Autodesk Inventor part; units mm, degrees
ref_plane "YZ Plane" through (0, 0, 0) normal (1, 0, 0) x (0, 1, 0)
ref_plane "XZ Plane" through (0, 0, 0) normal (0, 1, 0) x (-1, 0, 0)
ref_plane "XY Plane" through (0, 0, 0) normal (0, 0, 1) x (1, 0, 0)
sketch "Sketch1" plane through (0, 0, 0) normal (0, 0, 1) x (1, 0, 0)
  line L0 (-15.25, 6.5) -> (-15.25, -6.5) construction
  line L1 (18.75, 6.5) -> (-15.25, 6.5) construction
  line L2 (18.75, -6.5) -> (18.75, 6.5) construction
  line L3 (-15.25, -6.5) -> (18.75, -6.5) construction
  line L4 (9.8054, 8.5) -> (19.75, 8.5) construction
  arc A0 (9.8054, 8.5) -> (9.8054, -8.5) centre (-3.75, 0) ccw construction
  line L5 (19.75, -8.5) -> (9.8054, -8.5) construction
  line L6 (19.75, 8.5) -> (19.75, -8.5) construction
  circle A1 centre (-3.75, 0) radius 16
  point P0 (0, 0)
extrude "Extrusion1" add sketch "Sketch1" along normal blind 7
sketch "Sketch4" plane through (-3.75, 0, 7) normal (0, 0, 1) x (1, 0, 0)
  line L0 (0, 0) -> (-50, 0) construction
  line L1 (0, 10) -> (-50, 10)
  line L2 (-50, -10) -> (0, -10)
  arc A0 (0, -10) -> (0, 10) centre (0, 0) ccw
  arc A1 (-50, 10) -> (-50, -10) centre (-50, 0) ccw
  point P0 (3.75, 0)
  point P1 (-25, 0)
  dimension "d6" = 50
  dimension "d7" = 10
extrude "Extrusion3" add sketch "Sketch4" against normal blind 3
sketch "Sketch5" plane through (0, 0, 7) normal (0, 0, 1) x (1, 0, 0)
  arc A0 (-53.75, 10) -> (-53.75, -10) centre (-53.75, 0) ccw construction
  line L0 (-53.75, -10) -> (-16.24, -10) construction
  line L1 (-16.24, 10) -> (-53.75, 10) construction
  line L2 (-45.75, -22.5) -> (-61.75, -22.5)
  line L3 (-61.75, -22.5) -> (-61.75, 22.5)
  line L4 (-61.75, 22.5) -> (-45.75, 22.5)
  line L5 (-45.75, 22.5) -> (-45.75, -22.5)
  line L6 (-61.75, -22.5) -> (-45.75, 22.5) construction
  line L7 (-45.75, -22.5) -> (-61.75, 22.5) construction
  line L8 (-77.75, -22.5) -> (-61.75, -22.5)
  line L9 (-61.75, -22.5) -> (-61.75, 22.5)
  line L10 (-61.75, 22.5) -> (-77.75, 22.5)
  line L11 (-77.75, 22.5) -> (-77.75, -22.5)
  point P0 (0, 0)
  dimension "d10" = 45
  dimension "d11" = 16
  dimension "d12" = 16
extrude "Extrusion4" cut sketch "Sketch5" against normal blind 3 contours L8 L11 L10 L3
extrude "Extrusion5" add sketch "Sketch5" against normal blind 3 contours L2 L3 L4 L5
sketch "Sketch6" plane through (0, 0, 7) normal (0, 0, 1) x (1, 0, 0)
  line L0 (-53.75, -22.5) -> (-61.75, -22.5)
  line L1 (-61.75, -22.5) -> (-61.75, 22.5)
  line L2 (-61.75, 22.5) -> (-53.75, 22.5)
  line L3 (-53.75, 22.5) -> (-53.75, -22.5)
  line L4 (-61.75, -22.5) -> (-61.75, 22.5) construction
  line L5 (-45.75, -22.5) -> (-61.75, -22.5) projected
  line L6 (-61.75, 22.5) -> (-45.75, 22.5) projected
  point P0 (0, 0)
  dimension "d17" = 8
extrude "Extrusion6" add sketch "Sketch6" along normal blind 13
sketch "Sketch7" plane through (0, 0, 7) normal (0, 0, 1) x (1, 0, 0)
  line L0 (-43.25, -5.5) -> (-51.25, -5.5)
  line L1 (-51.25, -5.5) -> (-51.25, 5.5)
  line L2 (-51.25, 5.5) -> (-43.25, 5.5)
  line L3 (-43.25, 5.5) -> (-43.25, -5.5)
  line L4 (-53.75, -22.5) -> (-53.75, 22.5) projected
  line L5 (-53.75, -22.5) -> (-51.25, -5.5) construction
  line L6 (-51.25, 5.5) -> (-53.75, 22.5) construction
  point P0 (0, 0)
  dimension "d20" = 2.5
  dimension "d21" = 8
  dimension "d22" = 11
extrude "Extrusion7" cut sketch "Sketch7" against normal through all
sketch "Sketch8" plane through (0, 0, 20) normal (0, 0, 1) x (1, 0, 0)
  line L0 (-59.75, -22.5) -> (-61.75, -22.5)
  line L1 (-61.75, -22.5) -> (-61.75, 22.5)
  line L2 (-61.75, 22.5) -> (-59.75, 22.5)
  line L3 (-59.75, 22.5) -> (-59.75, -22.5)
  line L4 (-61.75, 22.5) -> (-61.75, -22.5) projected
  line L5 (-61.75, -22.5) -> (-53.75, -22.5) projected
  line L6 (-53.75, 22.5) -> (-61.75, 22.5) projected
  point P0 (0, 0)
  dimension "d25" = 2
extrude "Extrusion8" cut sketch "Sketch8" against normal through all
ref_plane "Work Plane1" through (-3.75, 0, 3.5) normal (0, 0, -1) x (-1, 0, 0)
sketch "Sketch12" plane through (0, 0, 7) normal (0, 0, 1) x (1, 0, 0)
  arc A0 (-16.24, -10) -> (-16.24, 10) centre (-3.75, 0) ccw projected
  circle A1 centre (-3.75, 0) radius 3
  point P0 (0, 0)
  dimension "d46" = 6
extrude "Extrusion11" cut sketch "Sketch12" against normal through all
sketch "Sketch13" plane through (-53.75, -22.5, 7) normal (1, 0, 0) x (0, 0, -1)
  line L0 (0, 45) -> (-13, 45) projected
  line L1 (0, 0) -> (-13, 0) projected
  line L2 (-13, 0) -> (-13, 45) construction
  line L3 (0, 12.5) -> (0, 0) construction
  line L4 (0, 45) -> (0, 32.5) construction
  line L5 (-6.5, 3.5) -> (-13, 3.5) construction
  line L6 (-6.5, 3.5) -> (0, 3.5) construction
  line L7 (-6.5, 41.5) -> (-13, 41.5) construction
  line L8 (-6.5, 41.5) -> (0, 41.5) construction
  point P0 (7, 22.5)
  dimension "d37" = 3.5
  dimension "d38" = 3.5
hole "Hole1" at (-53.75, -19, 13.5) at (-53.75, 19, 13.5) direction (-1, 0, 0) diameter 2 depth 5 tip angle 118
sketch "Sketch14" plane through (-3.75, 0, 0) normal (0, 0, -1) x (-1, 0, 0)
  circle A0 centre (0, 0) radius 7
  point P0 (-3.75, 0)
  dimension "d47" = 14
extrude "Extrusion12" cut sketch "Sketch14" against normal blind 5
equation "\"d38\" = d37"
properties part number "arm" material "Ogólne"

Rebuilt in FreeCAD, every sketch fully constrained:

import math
import FreeCAD as App
import Part
import Sketcher

doc = App.newDocument("Part")
body = doc.addObject("PartDesign::Body", "Body")

sketch1 = body.newObject("Sketcher::SketchObject", "Sketch")
sketch1.AttachmentSupport = (doc.getObject("XY_Plane"), [""])
sketch1.MapMode = "FlatFace"
sketch1.addGeometry(Part.Circle(App.Vector(-4, 0, 0), App.Vector(0, 0, 1), 16), False)
sketch1.addConstraint(Sketcher.Constraint("PointOnObject", 0, 3, -1))
sketch1.addConstraint(Sketcher.Constraint("Diameter", 0, 32.0))
sketch1.addConstraint(Sketcher.Constraint("DistanceX", 0, 3, -1, 1, 3.75))
pad1 = body.newObject("PartDesign::Pad", "Pad")
pad1.Profile = sketch1
pad1.Length = 7

sketch2 = body.newObject("Sketcher::SketchObject", "Sketch001")
sketch2.AttachmentSupport = (doc.getObject("XY_Plane"), [""])
sketch2.MapMode = "FlatFace"
sketch2.AttachmentOffset = App.Placement(App.Vector(0, 0, 7), App.Rotation())
sketch2.addGeometry(Part.ArcOfCircle(Part.Circle(App.Vector(-4, 0, 0), App.Vector(0, 0, 1), 10), math.radians(-90), math.radians(90)), False)
sketch2.addGeometry(Part.LineSegment(App.Vector(-4, 10, 0), App.Vector(-54, 10, 0)), False)
sketch2.addGeometry(Part.ArcOfCircle(Part.Circle(App.Vector(-54, 0, 0), App.Vector(0, 0, 1), 10), math.radians(90), math.radians(270)), False)
sketch2.addGeometry(Part.LineSegment(App.Vector(-54, -10, 0), App.Vector(-4, -10, 0)), False)
sketch2.addConstraint(Sketcher.Constraint("Tangent", 0, 2, 1, 1))
sketch2.addConstraint(Sketcher.Constraint("Tangent", 1, 2, 2, 1))
sketch2.addConstraint(Sketcher.Constraint("Tangent", 2, 2, 3, 1))
sketch2.addConstraint(Sketcher.Constraint("Tangent", 3, 2, 0, 1))
sketch2.addConstraint(Sketcher.Constraint("Horizontal", 1))
sketch2.addConstraint(Sketcher.Constraint("Horizontal", 3))
sketch2.addConstraint(Sketcher.Constraint("PointOnObject", 0, 3, -1))
sketch2.addConstraint(Sketcher.Constraint("Radius", 0, 10.0))
sketch2.addConstraint(Sketcher.Constraint("DistanceX", 1, 2, 1, 1, 50.0))
sketch2.addConstraint(Sketcher.Constraint("DistanceX", 0, 3, -1, 1, 3.75))
pad2 = body.newObject("PartDesign::Pad", "Pad001")
pad2.Profile = sketch2
pad2.Length = 3
pad2.Reversed = True

sketch3 = body.newObject("Sketcher::SketchObject", "Sketch002")
sketch3.AttachmentSupport = (doc.getObject("XY_Plane"), [""])
sketch3.MapMode = "FlatFace"
sketch3.AttachmentOffset = App.Placement(App.Vector(0, 0, 7), App.Rotation())
sketch3.addGeometry(Part.LineSegment(App.Vector(-78, -22, 0), App.Vector(-62, -22, 0)), False)
sketch3.addGeometry(Part.LineSegment(App.Vector(-62, -22, 0), App.Vector(-62, 22, 0)), False)
sketch3.addGeometry(Part.LineSegment(App.Vector(-62, 22, 0), App.Vector(-78, 22, 0)), False)
sketch3.addGeometry(Part.LineSegment(App.Vector(-78, 22, 0), App.Vector(-78, -22, 0)), False)
sketch3.addConstraint(Sketcher.Constraint("Coincident", 0, 2, 1, 1))
sketch3.addConstraint(Sketcher.Constraint("Coincident", 1, 2, 2, 1))
sketch3.addConstraint(Sketcher.Constraint("Coincident", 2, 2, 3, 1))
sketch3.addConstraint(Sketcher.Constraint("Coincident", 3, 2, 0, 1))
sketch3.addConstraint(Sketcher.Constraint("Horizontal", 0))
sketch3.addConstraint(Sketcher.Constraint("Vertical", 1))
sketch3.addConstraint(Sketcher.Constraint("Horizontal", 2))
sketch3.addConstraint(Sketcher.Constraint("Vertical", 3))
sketch3.addConstraint(Sketcher.Constraint("DistanceX", 0, 1, 0, 2, 16.0))
sketch3.addConstraint(Sketcher.Constraint("DistanceY", 1, 1, 1, 2, 45.0))
sketch3.addConstraint(Sketcher.Constraint("DistanceY", 0, 2, -1, 1, 22.5))
sketch3.addConstraint(Sketcher.Constraint("DistanceX", 0, 2, -1, 1, 61.75))
pocket1 = body.newObject("PartDesign::Pocket", "Pocket")
pocket1.Profile = sketch3
pocket1.Length = 3

sketch4 = body.newObject("Sketcher::SketchObject", "Sketch003")
sketch4.AttachmentSupport = (doc.getObject("XY_Plane"), [""])
sketch4.MapMode = "FlatFace"
sketch4.AttachmentOffset = App.Placement(App.Vector(0, 0, 7), App.Rotation())
sketch4.addGeometry(Part.LineSegment(App.Vector(-62, -22, 0), App.Vector(-46, -22, 0)), False)
sketch4.addGeometry(Part.LineSegment(App.Vector(-46, -22, 0), App.Vector(-46, 22, 0)), False)
sketch4.addGeometry(Part.LineSegment(App.Vector(-46, 22, 0), App.Vector(-62, 22, 0)), False)
sketch4.addGeometry(Part.LineSegment(App.Vector(-62, 22, 0), App.Vector(-62, -22, 0)), False)
sketch4.addConstraint(Sketcher.Constraint("Coincident", 0, 2, 1, 1))
sketch4.addConstraint(Sketcher.Constraint("Coincident", 1, 2, 2, 1))
sketch4.addConstraint(Sketcher.Constraint("Coincident", 2, 2, 3, 1))
sketch4.addConstraint(Sketcher.Constraint("Coincident", 3, 2, 0, 1))
sketch4.addConstraint(Sketcher.Constraint("Horizontal", 0))
sketch4.addConstraint(Sketcher.Constraint("Vertical", 1))
sketch4.addConstraint(Sketcher.Constraint("Horizontal", 2))
sketch4.addConstraint(Sketcher.Constraint("Vertical", 3))
sketch4.addConstraint(Sketcher.Constraint("DistanceX", 0, 1, 0, 2, 16.0))
sketch4.addConstraint(Sketcher.Constraint("DistanceY", 1, 1, 1, 2, 45.0))
sketch4.addConstraint(Sketcher.Constraint("DistanceY", 0, 2, -1, 1, 22.5))
sketch4.addConstraint(Sketcher.Constraint("DistanceX", 0, 2, -1, 1, 45.75))
pad3 = body.newObject("PartDesign::Pad", "Pad002")
pad3.Profile = sketch4
pad3.Length = 3
pad3.Reversed = True

sketch5 = body.newObject("Sketcher::SketchObject", "Sketch004")
sketch5.AttachmentSupport = (doc.getObject("XY_Plane"), [""])
sketch5.MapMode = "FlatFace"
sketch5.AttachmentOffset = App.Placement(App.Vector(0, 0, 7), App.Rotation())
sketch5.addGeometry(Part.LineSegment(App.Vector(-62, -22, 0), App.Vector(-54, -22, 0)), False)
sketch5.addGeometry(Part.LineSegment(App.Vector(-54, -22, 0), App.Vector(-54, 22, 0)), False)
sketch5.addGeometry(Part.LineSegment(App.Vector(-54, 22, 0), App.Vector(-62, 22, 0)), False)
sketch5.addGeometry(Part.LineSegment(App.Vector(-62, 22, 0), App.Vector(-62, -22, 0)), False)
sketch5.addConstraint(Sketcher.Constraint("Coincident", 0, 2, 1, 1))
sketch5.addConstraint(Sketcher.Constraint("Coincident", 1, 2, 2, 1))
sketch5.addConstraint(Sketcher.Constraint("Coincident", 2, 2, 3, 1))
sketch5.addConstraint(Sketcher.Constraint("Coincident", 3, 2, 0, 1))
sketch5.addConstraint(Sketcher.Constraint("Horizontal", 0))
sketch5.addConstraint(Sketcher.Constraint("Vertical", 1))
sketch5.addConstraint(Sketcher.Constraint("Horizontal", 2))
sketch5.addConstraint(Sketcher.Constraint("Vertical", 3))
sketch5.addConstraint(Sketcher.Constraint("DistanceX", 0, 1, 0, 2, 8.0))
sketch5.addConstraint(Sketcher.Constraint("DistanceY", 1, 1, 1, 2, 45.0))
sketch5.addConstraint(Sketcher.Constraint("DistanceY", 0, 2, -1, 1, 22.5))
sketch5.addConstraint(Sketcher.Constraint("DistanceX", 0, 2, -1, 1, 53.75))
pad4 = body.newObject("PartDesign::Pad", "Pad003")
pad4.Profile = sketch5
pad4.Length = 13

sketch6 = body.newObject("Sketcher::SketchObject", "Sketch005")
sketch6.AttachmentSupport = (doc.getObject("XY_Plane"), [""])
sketch6.MapMode = "FlatFace"
sketch6.AttachmentOffset = App.Placement(App.Vector(0, 0, 7), App.Rotation())
sketch6.addGeometry(Part.LineSegment(App.Vector(-51, -6, 0), App.Vector(-43, -6, 0)), False)
sketch6.addGeometry(Part.LineSegment(App.Vector(-43, -6, 0), App.Vector(-43, 6, 0)), False)
sketch6.addGeometry(Part.LineSegment(App.Vector(-43, 6, 0), App.Vector(-51, 6, 0)), False)
sketch6.addGeometry(Part.LineSegment(App.Vector(-51, 6, 0), App.Vector(-51, -6, 0)), False)
sketch6.addConstraint(Sketcher.Constraint("Coincident", 0, 2, 1, 1))
sketch6.addConstraint(Sketcher.Constraint("Coincident", 1, 2, 2, 1))
sketch6.addConstraint(Sketcher.Constraint("Coincident", 2, 2, 3, 1))
sketch6.addConstraint(Sketcher.Constraint("Coincident", 3, 2, 0, 1))
sketch6.addConstraint(Sketcher.Constraint("Horizontal", 0))
sketch6.addConstraint(Sketcher.Constraint("Vertical", 1))
sketch6.addConstraint(Sketcher.Constraint("Horizontal", 2))
sketch6.addConstraint(Sketcher.Constraint("Vertical", 3))
sketch6.addConstraint(Sketcher.Constraint("DistanceX", 0, 1, 0, 2, 8.0))
sketch6.addConstraint(Sketcher.Constraint("DistanceY", 1, 1, 1, 2, 11.0))
sketch6.addConstraint(Sketcher.Constraint("DistanceY", 0, 2, -1, 1, 5.5))
sketch6.addConstraint(Sketcher.Constraint("DistanceX", 0, 2, -1, 1, 43.25))
pocket2 = body.newObject("PartDesign::Pocket", "Pocket001")
pocket2.Profile = sketch6
pocket2.Type = "ThroughAll"

sketch7 = body.newObject("Sketcher::SketchObject", "Sketch006")
sketch7.AttachmentSupport = (doc.getObject("XY_Plane"), [""])
sketch7.MapMode = "FlatFace"
sketch7.AttachmentOffset = App.Placement(App.Vector(0, 0, 20), App.Rotation())
sketch7.addGeometry(Part.LineSegment(App.Vector(-61.8, -22.5, 0), App.Vector(-59.8, -22.5, 0)), False)
sketch7.addGeometry(Part.LineSegment(App.Vector(-59.8, -22.5, 0), App.Vector(-59.8, 22.5, 0)), False)
sketch7.addGeometry(Part.LineSegment(App.Vector(-59.8, 22.5, 0), App.Vector(-61.8, 22.5, 0)), False)
sketch7.addGeometry(Part.LineSegment(App.Vector(-61.8, 22.5, 0), App.Vector(-61.8, -22.5, 0)), False)
sketch7.addConstraint(Sketcher.Constraint("Coincident", 0, 2, 1, 1))
sketch7.addConstraint(Sketcher.Constraint("Coincident", 1, 2, 2, 1))
sketch7.addConstraint(Sketcher.Constraint("Coincident", 2, 2, 3, 1))
sketch7.addConstraint(Sketcher.Constraint("Coincident", 3, 2, 0, 1))
sketch7.addConstraint(Sketcher.Constraint("Horizontal", 0))
sketch7.addConstraint(Sketcher.Constraint("Vertical", 1))
sketch7.addConstraint(Sketcher.Constraint("Horizontal", 2))
sketch7.addConstraint(Sketcher.Constraint("Vertical", 3))
sketch7.addConstraint(Sketcher.Constraint("DistanceX", 0, 1, 0, 2, 2.0))
sketch7.addConstraint(Sketcher.Constraint("DistanceY", 1, 1, 1, 2, 45.0))
sketch7.addConstraint(Sketcher.Constraint("DistanceY", 0, 2, -1, 1, 22.5))
sketch7.addConstraint(Sketcher.Constraint("DistanceX", 0, 2, -1, 1, 59.75))
pocket3 = body.newObject("PartDesign::Pocket", "Pocket002")
pocket3.Profile = sketch7
pocket3.Type = "ThroughAll"

sketch8 = body.newObject("Sketcher::SketchObject", "Sketch007")
sketch8.AttachmentSupport = (doc.getObject("XY_Plane"), [""])
sketch8.MapMode = "FlatFace"
sketch8.AttachmentOffset = App.Placement(App.Vector(0, 0, 7), App.Rotation())
sketch8.addGeometry(Part.Circle(App.Vector(-3.8, 0, 0), App.Vector(0, 0, 1), 3), False)
sketch8.addConstraint(Sketcher.Constraint("PointOnObject", 0, 3, -1))
sketch8.addConstraint(Sketcher.Constraint("Diameter", 0, 6.0))
sketch8.addConstraint(Sketcher.Constraint("DistanceX", 0, 3, -1, 1, 3.75))
pocket4 = body.newObject("PartDesign::Pocket", "Pocket003")
pocket4.Profile = sketch8
pocket4.Type = "ThroughAll"

sketch9 = body.newObject("Sketcher::SketchObject", "Sketch008")
sketch9.AttachmentSupport = (doc.getObject("YZ_Plane"), [""])
sketch9.MapMode = "FlatFace"
sketch9.AttachmentOffset = App.Placement(App.Vector(0, 0, -53.75), App.Rotation())
sketch9.addGeometry(Part.Circle(App.Vector(-19, 13.5, 0), App.Vector(0, 0, 1), 1), False)
sketch9.addGeometry(Part.Circle(App.Vector(19, 13.5, 0), App.Vector(0, 0, 1), 1), False)
sketch9.addConstraint(Sketcher.Constraint("Equal", 0, 1))
sketch9.addConstraint(Sketcher.Constraint("Symmetric", 0, 3, 1, 3, -2))
sketch9.addConstraint(Sketcher.Constraint("Diameter", 0, 2.0))
sketch9.addConstraint(Sketcher.Constraint("DistanceX", 0, 3, -1, 1, 19.0))
sketch9.addConstraint(Sketcher.Constraint("DistanceY", -1, 1, 0, 3, 13.5))
doc.recompute()
hole = body.newObject("PartDesign::Hole", "Hole")
hole.Profile = sketch9
hole.ThreadType = "None"
hole.Diameter = 2
hole.DepthType = "Dimension"
hole.Depth = 5
hole.DrillPoint = "Angled"
hole.DrillPointAngle = 118

sketch10 = body.newObject("Sketcher::SketchObject", "Sketch009")
sketch10.AttachmentSupport = (doc.getObject("XY_Plane"), [""])
sketch10.MapMode = "FlatFace"
sketch10.addGeometry(Part.Circle(App.Vector(-4, 0, 0), App.Vector(0, 0, 1), 7), False)
sketch10.addConstraint(Sketcher.Constraint("PointOnObject", 0, 3, -1))
sketch10.addConstraint(Sketcher.Constraint("Diameter", 0, 14.0))
sketch10.addConstraint(Sketcher.Constraint("DistanceX", 0, 3, -1, 1, 3.75))
pocket5 = body.newObject("PartDesign::Pocket", "Pocket004")
pocket5.Profile = sketch10
pocket5.Length = 5
pocket5.Reversed = True

doc.recompute()
